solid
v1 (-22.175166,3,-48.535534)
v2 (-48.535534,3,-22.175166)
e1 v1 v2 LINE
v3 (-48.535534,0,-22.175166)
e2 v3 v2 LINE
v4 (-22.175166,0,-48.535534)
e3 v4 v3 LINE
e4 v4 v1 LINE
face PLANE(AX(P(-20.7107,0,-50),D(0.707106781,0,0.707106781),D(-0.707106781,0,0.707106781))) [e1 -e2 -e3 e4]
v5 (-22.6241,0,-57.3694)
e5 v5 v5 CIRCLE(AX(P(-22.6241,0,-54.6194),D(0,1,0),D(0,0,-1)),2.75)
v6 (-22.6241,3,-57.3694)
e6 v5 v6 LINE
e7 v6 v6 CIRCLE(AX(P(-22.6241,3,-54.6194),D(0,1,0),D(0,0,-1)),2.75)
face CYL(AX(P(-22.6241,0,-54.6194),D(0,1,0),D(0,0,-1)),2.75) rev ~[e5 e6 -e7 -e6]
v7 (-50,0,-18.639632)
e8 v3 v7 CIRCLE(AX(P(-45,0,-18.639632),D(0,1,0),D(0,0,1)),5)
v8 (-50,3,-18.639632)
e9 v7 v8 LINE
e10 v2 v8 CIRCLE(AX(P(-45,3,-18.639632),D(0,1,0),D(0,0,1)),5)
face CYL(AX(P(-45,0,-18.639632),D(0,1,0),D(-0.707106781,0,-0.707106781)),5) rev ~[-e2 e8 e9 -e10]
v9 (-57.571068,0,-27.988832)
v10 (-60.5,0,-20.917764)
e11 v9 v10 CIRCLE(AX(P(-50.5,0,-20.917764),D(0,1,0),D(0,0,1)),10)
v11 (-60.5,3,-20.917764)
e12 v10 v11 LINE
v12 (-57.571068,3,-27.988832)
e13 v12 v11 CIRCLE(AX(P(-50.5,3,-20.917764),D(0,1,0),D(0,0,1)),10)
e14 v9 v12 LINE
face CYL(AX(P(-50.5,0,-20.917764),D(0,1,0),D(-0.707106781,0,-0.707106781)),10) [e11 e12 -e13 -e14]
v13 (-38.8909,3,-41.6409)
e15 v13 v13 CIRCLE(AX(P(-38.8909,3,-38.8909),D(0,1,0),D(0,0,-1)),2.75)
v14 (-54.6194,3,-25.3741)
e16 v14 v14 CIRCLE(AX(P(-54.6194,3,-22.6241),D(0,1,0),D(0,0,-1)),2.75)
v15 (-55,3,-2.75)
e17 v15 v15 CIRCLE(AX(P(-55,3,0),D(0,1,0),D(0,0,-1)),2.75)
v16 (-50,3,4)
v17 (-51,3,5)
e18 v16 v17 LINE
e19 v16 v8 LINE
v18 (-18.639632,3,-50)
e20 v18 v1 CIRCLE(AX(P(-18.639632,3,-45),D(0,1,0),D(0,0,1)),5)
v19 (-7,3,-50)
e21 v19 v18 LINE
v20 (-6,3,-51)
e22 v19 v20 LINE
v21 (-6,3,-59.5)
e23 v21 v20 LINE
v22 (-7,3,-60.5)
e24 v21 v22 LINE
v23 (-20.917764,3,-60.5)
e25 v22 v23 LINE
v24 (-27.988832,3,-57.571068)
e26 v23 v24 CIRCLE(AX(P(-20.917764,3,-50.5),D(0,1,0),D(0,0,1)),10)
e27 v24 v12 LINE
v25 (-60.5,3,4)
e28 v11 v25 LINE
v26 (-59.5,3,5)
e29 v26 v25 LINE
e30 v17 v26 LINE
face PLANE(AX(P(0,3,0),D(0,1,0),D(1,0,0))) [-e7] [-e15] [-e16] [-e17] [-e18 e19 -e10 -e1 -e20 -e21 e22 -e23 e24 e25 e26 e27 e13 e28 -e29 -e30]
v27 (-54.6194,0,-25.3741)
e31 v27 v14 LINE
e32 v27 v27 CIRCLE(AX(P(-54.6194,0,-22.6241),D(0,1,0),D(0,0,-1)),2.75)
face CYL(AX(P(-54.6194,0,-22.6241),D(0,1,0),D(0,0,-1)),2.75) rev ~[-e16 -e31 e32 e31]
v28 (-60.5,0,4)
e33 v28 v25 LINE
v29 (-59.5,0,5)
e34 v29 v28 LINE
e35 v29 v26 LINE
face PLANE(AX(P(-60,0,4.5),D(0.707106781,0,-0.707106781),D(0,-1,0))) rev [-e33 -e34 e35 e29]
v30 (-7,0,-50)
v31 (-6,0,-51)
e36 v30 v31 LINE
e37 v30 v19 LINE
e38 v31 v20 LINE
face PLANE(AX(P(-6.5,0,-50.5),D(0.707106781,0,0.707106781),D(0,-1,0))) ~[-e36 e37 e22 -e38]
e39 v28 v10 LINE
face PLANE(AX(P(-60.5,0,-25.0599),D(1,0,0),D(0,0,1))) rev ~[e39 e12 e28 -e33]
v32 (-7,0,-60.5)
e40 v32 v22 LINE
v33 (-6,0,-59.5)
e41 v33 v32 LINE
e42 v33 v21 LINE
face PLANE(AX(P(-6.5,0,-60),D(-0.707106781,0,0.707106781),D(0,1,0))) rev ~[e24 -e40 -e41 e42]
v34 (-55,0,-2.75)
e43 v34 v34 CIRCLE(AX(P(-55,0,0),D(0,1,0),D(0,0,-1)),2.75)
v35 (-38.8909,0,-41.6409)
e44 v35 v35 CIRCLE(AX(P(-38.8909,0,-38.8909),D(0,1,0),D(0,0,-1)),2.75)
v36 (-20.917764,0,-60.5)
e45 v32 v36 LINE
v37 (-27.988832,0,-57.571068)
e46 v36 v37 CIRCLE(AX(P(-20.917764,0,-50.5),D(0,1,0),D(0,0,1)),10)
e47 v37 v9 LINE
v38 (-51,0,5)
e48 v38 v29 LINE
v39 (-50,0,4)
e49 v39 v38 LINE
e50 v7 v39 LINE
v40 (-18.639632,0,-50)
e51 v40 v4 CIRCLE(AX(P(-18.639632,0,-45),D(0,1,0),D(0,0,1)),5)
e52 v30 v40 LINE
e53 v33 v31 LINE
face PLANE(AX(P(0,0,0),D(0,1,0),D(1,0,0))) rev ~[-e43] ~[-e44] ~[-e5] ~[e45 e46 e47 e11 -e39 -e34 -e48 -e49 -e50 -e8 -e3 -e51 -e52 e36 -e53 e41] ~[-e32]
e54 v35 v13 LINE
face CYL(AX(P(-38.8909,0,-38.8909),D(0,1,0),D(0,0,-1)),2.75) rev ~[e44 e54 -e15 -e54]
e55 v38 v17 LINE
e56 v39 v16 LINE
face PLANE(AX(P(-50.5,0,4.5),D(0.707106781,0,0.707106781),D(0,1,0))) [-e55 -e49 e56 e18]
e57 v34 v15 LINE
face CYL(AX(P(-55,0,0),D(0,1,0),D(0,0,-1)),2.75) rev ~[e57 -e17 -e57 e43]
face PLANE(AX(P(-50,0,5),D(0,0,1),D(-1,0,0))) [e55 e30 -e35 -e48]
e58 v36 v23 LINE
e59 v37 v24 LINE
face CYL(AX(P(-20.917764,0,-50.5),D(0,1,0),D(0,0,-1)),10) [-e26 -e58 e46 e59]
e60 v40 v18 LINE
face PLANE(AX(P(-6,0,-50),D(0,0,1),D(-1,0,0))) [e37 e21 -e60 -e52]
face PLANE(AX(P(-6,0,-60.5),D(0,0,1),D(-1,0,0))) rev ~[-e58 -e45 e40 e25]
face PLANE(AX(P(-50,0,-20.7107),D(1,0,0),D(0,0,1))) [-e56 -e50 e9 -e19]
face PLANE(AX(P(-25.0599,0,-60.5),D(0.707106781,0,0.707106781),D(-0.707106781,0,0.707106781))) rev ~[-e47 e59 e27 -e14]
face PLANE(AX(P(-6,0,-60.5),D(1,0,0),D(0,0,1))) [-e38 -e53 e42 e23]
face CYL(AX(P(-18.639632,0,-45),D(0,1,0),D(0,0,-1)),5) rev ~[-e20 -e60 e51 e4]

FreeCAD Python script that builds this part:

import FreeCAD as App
import Part
import Sketcher
from FreeCAD import Vector
Q = App.Units.Quantity


def edges_at(feature, points):
    """Names of the edges that pass closest to the given points."""
    edges = feature.Shape.Edges
    near = lambda p: min(range(len(edges)), key=lambda i: edges[i].distToShape(Part.Vertex(*p))[0])
    return sorted({f"Edge{near(p) + 1}" for p in points})

doc = App.newDocument("Part")
body = doc.addObject("PartDesign::Body", "Body")

# Sketch on XZ plane
sketch1 = body.newObject("Sketcher::SketchObject", "Sketch")
sketch1.AttachmentSupport = (doc.getObject("XZ_Plane"), [""])
sketch1.MapMode = "FlatFace"
sketch1.addGeometry(Part.LineSegment(Vector(-21, -50, 0), Vector(-6, -50, 0)), False)
sketch1.addGeometry(Part.LineSegment(Vector(-6, -50, 0), Vector(-6, -60, 0)), False)
sketch1.addGeometry(Part.LineSegment(Vector(-6, -60, 0), Vector(-25, -60, 0)), False)
sketch1.addGeometry(Part.LineSegment(Vector(-25, -60, 0), Vector(-60, -25, 0)), False)
sketch1.addGeometry(Part.LineSegment(Vector(-60, -25, 0), Vector(-60, 5, 0)), False)
sketch1.addGeometry(Part.LineSegment(Vector(-60, 5, 0), Vector(-50, 5, 0)), False)
sketch1.addGeometry(Part.LineSegment(Vector(-50, 5, 0), Vector(-50, -21, 0)), False)
sketch1.addGeometry(Part.LineSegment(Vector(-50, -21, 0), Vector(-21, -50, 0)), False)
sketch1.addConstraint(Sketcher.Constraint("Coincident", 0, 2, 1, 1))
sketch1.addConstraint(Sketcher.Constraint("Coincident", 1, 2, 2, 1))
sketch1.addConstraint(Sketcher.Constraint("Coincident", 2, 2, 3, 1))
sketch1.addConstraint(Sketcher.Constraint("Coincident", 3, 2, 4, 1))
sketch1.addConstraint(Sketcher.Constraint("Coincident", 4, 2, 5, 1))
sketch1.addConstraint(Sketcher.Constraint("Coincident", 5, 2, 6, 1))
sketch1.addConstraint(Sketcher.Constraint("Coincident", 6, 2, 7, 1))
sketch1.addConstraint(Sketcher.Constraint("Coincident", 7, 2, 0, 1))
sketch1.addConstraint(Sketcher.Constraint("Horizontal", 0))
sketch1.addConstraint(Sketcher.Constraint("Vertical", 1))
sketch1.addConstraint(Sketcher.Constraint("Horizontal", 2))
sketch1.addConstraint(Sketcher.Constraint("Vertical", 4))
sketch1.addConstraint(Sketcher.Constraint("Horizontal", 5))
sketch1.addConstraint(Sketcher.Constraint("Vertical", 6))
sketch1.addConstraint(Sketcher.Constraint("Parallel", 3, 7))
sketch1.addConstraint(Sketcher.Constraint("Equal", 5, 1))
sketch1.addConstraint(Sketcher.Constraint("Angle", 7, Q("-45 deg")))
sketch1.addConstraint(Sketcher.Constraint("DistanceX", 0, 2, -1, 1, 6.0))
sketch1.addConstraint(Sketcher.Constraint("DistanceY", -1, 1, 4, 2, 5.0))
sketch1.addConstraint(Sketcher.Constraint("DistanceX", 5, 1, 5, 2, 10.5))
sketch1.addConstraint(Sketcher.Constraint("DistanceY", 0, 2, -1, 1, 50.0))
sketch1.addConstraint(Sketcher.Constraint("DistanceX", 5, 2, -1, 1, 50.0))
sketch1.addConstraint(Sketcher.Constraint("DistanceX", 2, 2, 2, 1, 19.06))
sketch1.addConstraint(Sketcher.Constraint("DistanceX", 0, 1, 0, 2, 14.7107))
pad1 = body.newObject("PartDesign::Pad", "Pad")
pad1.Profile = sketch1
pad1.Length = 3
pad1.Reversed = True

# Sketch on XZ plane
sketch2 = body.newObject("Sketcher::SketchObject", "Sketch001")
sketch2.AttachmentSupport = (doc.getObject("XZ_Plane"), [""])
sketch2.MapMode = "FlatFace"
sketch2.addGeometry(Part.Circle(Vector(-54.6, -22.6, 0), Vector(0, 0, 1), 2.8), False)
sketch2.addGeometry(Part.Circle(Vector(-38.9, -38.9, 0), Vector(0, 0, 1), 2.8), False)
sketch2.addGeometry(Part.Circle(Vector(-22.6, -54.6, 0), Vector(0, 0, 1), 2.8), False)
sketch2.addGeometry(Part.Circle(Vector(-55, 0, 0), Vector(0, 0, 1), 2.8), False)
sketch2.addConstraint(Sketcher.Constraint("Equal", 0, 1))
sketch2.addConstraint(Sketcher.Constraint("Equal", 1, 2))
sketch2.addConstraint(Sketcher.Constraint("Equal", 2, 3))
sketch2.addConstraint(Sketcher.Constraint("PointOnObject", 3, 3, -1))
sketch2.addConstraint(Sketcher.Constraint("Diameter", 0, 5.5))
sketch2.addConstraint(Sketcher.Constraint("DistanceX", 3, 3, -1, 1, 55.0))
sketch2.addConstraint(Sketcher.Constraint("DistanceY", 0, 3, -1, 1, 22.624))
sketch2.addConstraint(Sketcher.Constraint("DistanceX", 1, 3, -1, 1, 38.891))
sketch2.addConstraint(Sketcher.Constraint("DistanceY", 1, 3, -1, 1, 38.891))
sketch2.addConstraint(Sketcher.Constraint("DistanceX", 2, 3, -1, 1, 22.624))
sketch2.addConstraint(Sketcher.Constraint("DistanceX", 0, 3, -1, 1, 54.6194))
sketch2.addConstraint(Sketcher.Constraint("DistanceY", 2, 3, -1, 1, 54.6194))
doc.recompute()
hole = body.newObject("PartDesign::Hole", "Hole")
hole.Profile = sketch2
hole.ThreadType = "None"
hole.Diameter = 5.5
hole.DepthType = "Dimension"
hole.Depth = 5
hole.DrillPoint = "Angled"
hole.DrillPointAngle = 118
doc.recompute()

fillet = body.newObject("PartDesign::Fillet", "Fillet")
fillet.Base = (hole, edges_at(hole, [(-60.5, 1.5, -25.06), (-25.06, 1.5, -60.5)]))
fillet.Radius = 10
doc.recompute()

fillet2 = body.newObject("PartDesign::Fillet", "Fillet001")
fillet2.Base = (fillet, edges_at(fillet, [(-50, 1.5, -20.711), (-20.711, 1.5, -50)]))
fillet2.Radius = 5
doc.recompute()

chamfer = body.newObject("PartDesign::Chamfer", "Chamfer")
chamfer.Base = (fillet2, edges_at(fillet2, [
    (-50, 1.5, 5),
    (-60.5, 1.5, 5),
    (-6, 1.5, -50),
    (-6, 1.5, -60.5),
]))
chamfer.Size = 1

doc.recompute()
